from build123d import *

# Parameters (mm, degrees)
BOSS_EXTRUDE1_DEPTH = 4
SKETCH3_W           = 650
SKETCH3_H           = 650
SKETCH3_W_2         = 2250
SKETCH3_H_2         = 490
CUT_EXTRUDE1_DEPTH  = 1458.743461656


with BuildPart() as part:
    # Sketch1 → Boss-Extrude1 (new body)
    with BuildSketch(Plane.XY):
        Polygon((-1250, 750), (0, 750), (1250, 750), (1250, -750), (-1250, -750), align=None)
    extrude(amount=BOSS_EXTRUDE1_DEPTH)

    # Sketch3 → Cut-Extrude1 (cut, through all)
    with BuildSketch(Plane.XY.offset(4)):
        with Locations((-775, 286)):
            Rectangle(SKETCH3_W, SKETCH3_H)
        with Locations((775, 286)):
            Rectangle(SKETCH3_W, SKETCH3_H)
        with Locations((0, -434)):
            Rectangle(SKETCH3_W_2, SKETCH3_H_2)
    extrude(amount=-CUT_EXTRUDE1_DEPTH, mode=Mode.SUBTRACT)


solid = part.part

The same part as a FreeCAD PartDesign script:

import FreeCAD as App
import Part
import Sketcher

V = App.Vector
Q = App.Units.Quantity


def add_polygon(sketch, points):
    """Adds a closed chain of lines whose ends are joined by coincident constraints."""
    first, n = sketch.GeometryCount, len(points)
    for a, b in zip(points, points[1:] + points[:1]):
        sketch.addGeometry(Part.LineSegment(App.Vector(*a, 0), App.Vector(*b, 0)), False)
    for i in range(n):
        sketch.addConstraint(Sketcher.Constraint("Coincident", first + i, 2, first + (i + 1) % n, 1))

doc = App.newDocument("Part")
body = doc.addObject("PartDesign::Body", "Body")

# Sketch on XY plane
sketch1 = body.newObject("Sketcher::SketchObject", "Sketch")
sketch1.AttachmentSupport = (doc.getObject("XY_Plane"), [""])
sketch1.MapMode = "FlatFace"
add_polygon(sketch1, [(1250, 750), (-1250, 750), (-1250, -750), (1250, -750)])  # lines 0-3
sketch1.addConstraint(Sketcher.Constraint("Horizontal", 0))
sketch1.addConstraint(Sketcher.Constraint("Vertical", 1))
sketch1.addConstraint(Sketcher.Constraint("Horizontal", 2))
sketch1.addConstraint(Sketcher.Constraint("Vertical", 3))
sketch1.addConstraint(Sketcher.Constraint("Symmetric", 0, 2, 2, 2, -1, 1))
sketch1.addConstraint(Sketcher.Constraint("DistanceX", 0, 2, 0, 1, Q("2500 mm")))
sketch1.addConstraint(Sketcher.Constraint("DistanceY", 1, 2, 1, 1, Q("1500 mm")))
pad1 = body.newObject("PartDesign::Pad", "Pad")
pad1.Profile = sketch1
pad1.Length = 4

# Sketch on XY plane
sketch2 = body.newObject("Sketcher::SketchObject", "Sketch001")
sketch2.AttachmentSupport = (doc.getObject("XY_Plane"), [""])
sketch2.MapMode = "FlatFace"
sketch2.AttachmentOffset = App.Placement(V(0, 0, 4), App.Rotation())
add_polygon(sketch2, [(-1100, 611), (-1100, -39), (-450, -39), (-450, 611)])  # lines 0-3
add_polygon(sketch2, [(450, 611), (450, -39), (1100, -39), (1100, 611)])  # lines 4-7
add_polygon(sketch2, [(-1125, -189), (-1125, -679), (1125, -679), (1125, -189)])  # lines 8-11
sketch2.addConstraint(Sketcher.Constraint("Vertical", 0))
sketch2.addConstraint(Sketcher.Constraint("Horizontal", 1))
sketch2.addConstraint(Sketcher.Constraint("Vertical", 2))
sketch2.addConstraint(Sketcher.Constraint("Horizontal", 3))
sketch2.addConstraint(Sketcher.Constraint("Vertical", 4))
sketch2.addConstraint(Sketcher.Constraint("Horizontal", 5))
sketch2.addConstraint(Sketcher.Constraint("Vertical", 6))
sketch2.addConstraint(Sketcher.Constraint("Horizontal", 7))
sketch2.addConstraint(Sketcher.Constraint("Vertical", 8))
sketch2.addConstraint(Sketcher.Constraint("Horizontal", 9))
sketch2.addConstraint(Sketcher.Constraint("Vertical", 10))
sketch2.addConstraint(Sketcher.Constraint("Horizontal", 11))
sketch2.addConstraint(Sketcher.Constraint("Symmetric", 1, 2, 4, 2, -2))
sketch2.addConstraint(Sketcher.Constraint("Symmetric", 3, 2, 6, 2, -2))
sketch2.addConstraint(Sketcher.Constraint("Equal", 7, 0))
sketch2.addConstraint(Sketcher.Constraint("DistanceX", 1, 1, 1, 2, Q("650 mm")))
sketch2.addConstraint(Sketcher.Constraint("DistanceX", 9, 1, 9, 2, Q("2250 mm")))
sketch2.addConstraint(Sketcher.Constraint("DistanceY", 8, 2, 8, 1, Q("490 mm")))
sketch2.addConstraint(Sketcher.Constraint("DistanceX", 0, 2, -1, 1, Q("1100 mm")))
sketch2.addConstraint(Sketcher.Constraint("DistanceY", 0, 2, -1, 1, Q("39 mm")))
sketch2.addConstraint(Sketcher.Constraint("DistanceX", 8, 2, -1, 1, Q("1125 mm")))
sketch2.addConstraint(Sketcher.Constraint("DistanceY", 8, 2, -1, 1, Q("679 mm")))
pocket1 = body.newObject("PartDesign::Pocket", "Pocket")
pocket1.Profile = sketch2
pocket1.Type = "ThroughAll"

doc.recompute()
